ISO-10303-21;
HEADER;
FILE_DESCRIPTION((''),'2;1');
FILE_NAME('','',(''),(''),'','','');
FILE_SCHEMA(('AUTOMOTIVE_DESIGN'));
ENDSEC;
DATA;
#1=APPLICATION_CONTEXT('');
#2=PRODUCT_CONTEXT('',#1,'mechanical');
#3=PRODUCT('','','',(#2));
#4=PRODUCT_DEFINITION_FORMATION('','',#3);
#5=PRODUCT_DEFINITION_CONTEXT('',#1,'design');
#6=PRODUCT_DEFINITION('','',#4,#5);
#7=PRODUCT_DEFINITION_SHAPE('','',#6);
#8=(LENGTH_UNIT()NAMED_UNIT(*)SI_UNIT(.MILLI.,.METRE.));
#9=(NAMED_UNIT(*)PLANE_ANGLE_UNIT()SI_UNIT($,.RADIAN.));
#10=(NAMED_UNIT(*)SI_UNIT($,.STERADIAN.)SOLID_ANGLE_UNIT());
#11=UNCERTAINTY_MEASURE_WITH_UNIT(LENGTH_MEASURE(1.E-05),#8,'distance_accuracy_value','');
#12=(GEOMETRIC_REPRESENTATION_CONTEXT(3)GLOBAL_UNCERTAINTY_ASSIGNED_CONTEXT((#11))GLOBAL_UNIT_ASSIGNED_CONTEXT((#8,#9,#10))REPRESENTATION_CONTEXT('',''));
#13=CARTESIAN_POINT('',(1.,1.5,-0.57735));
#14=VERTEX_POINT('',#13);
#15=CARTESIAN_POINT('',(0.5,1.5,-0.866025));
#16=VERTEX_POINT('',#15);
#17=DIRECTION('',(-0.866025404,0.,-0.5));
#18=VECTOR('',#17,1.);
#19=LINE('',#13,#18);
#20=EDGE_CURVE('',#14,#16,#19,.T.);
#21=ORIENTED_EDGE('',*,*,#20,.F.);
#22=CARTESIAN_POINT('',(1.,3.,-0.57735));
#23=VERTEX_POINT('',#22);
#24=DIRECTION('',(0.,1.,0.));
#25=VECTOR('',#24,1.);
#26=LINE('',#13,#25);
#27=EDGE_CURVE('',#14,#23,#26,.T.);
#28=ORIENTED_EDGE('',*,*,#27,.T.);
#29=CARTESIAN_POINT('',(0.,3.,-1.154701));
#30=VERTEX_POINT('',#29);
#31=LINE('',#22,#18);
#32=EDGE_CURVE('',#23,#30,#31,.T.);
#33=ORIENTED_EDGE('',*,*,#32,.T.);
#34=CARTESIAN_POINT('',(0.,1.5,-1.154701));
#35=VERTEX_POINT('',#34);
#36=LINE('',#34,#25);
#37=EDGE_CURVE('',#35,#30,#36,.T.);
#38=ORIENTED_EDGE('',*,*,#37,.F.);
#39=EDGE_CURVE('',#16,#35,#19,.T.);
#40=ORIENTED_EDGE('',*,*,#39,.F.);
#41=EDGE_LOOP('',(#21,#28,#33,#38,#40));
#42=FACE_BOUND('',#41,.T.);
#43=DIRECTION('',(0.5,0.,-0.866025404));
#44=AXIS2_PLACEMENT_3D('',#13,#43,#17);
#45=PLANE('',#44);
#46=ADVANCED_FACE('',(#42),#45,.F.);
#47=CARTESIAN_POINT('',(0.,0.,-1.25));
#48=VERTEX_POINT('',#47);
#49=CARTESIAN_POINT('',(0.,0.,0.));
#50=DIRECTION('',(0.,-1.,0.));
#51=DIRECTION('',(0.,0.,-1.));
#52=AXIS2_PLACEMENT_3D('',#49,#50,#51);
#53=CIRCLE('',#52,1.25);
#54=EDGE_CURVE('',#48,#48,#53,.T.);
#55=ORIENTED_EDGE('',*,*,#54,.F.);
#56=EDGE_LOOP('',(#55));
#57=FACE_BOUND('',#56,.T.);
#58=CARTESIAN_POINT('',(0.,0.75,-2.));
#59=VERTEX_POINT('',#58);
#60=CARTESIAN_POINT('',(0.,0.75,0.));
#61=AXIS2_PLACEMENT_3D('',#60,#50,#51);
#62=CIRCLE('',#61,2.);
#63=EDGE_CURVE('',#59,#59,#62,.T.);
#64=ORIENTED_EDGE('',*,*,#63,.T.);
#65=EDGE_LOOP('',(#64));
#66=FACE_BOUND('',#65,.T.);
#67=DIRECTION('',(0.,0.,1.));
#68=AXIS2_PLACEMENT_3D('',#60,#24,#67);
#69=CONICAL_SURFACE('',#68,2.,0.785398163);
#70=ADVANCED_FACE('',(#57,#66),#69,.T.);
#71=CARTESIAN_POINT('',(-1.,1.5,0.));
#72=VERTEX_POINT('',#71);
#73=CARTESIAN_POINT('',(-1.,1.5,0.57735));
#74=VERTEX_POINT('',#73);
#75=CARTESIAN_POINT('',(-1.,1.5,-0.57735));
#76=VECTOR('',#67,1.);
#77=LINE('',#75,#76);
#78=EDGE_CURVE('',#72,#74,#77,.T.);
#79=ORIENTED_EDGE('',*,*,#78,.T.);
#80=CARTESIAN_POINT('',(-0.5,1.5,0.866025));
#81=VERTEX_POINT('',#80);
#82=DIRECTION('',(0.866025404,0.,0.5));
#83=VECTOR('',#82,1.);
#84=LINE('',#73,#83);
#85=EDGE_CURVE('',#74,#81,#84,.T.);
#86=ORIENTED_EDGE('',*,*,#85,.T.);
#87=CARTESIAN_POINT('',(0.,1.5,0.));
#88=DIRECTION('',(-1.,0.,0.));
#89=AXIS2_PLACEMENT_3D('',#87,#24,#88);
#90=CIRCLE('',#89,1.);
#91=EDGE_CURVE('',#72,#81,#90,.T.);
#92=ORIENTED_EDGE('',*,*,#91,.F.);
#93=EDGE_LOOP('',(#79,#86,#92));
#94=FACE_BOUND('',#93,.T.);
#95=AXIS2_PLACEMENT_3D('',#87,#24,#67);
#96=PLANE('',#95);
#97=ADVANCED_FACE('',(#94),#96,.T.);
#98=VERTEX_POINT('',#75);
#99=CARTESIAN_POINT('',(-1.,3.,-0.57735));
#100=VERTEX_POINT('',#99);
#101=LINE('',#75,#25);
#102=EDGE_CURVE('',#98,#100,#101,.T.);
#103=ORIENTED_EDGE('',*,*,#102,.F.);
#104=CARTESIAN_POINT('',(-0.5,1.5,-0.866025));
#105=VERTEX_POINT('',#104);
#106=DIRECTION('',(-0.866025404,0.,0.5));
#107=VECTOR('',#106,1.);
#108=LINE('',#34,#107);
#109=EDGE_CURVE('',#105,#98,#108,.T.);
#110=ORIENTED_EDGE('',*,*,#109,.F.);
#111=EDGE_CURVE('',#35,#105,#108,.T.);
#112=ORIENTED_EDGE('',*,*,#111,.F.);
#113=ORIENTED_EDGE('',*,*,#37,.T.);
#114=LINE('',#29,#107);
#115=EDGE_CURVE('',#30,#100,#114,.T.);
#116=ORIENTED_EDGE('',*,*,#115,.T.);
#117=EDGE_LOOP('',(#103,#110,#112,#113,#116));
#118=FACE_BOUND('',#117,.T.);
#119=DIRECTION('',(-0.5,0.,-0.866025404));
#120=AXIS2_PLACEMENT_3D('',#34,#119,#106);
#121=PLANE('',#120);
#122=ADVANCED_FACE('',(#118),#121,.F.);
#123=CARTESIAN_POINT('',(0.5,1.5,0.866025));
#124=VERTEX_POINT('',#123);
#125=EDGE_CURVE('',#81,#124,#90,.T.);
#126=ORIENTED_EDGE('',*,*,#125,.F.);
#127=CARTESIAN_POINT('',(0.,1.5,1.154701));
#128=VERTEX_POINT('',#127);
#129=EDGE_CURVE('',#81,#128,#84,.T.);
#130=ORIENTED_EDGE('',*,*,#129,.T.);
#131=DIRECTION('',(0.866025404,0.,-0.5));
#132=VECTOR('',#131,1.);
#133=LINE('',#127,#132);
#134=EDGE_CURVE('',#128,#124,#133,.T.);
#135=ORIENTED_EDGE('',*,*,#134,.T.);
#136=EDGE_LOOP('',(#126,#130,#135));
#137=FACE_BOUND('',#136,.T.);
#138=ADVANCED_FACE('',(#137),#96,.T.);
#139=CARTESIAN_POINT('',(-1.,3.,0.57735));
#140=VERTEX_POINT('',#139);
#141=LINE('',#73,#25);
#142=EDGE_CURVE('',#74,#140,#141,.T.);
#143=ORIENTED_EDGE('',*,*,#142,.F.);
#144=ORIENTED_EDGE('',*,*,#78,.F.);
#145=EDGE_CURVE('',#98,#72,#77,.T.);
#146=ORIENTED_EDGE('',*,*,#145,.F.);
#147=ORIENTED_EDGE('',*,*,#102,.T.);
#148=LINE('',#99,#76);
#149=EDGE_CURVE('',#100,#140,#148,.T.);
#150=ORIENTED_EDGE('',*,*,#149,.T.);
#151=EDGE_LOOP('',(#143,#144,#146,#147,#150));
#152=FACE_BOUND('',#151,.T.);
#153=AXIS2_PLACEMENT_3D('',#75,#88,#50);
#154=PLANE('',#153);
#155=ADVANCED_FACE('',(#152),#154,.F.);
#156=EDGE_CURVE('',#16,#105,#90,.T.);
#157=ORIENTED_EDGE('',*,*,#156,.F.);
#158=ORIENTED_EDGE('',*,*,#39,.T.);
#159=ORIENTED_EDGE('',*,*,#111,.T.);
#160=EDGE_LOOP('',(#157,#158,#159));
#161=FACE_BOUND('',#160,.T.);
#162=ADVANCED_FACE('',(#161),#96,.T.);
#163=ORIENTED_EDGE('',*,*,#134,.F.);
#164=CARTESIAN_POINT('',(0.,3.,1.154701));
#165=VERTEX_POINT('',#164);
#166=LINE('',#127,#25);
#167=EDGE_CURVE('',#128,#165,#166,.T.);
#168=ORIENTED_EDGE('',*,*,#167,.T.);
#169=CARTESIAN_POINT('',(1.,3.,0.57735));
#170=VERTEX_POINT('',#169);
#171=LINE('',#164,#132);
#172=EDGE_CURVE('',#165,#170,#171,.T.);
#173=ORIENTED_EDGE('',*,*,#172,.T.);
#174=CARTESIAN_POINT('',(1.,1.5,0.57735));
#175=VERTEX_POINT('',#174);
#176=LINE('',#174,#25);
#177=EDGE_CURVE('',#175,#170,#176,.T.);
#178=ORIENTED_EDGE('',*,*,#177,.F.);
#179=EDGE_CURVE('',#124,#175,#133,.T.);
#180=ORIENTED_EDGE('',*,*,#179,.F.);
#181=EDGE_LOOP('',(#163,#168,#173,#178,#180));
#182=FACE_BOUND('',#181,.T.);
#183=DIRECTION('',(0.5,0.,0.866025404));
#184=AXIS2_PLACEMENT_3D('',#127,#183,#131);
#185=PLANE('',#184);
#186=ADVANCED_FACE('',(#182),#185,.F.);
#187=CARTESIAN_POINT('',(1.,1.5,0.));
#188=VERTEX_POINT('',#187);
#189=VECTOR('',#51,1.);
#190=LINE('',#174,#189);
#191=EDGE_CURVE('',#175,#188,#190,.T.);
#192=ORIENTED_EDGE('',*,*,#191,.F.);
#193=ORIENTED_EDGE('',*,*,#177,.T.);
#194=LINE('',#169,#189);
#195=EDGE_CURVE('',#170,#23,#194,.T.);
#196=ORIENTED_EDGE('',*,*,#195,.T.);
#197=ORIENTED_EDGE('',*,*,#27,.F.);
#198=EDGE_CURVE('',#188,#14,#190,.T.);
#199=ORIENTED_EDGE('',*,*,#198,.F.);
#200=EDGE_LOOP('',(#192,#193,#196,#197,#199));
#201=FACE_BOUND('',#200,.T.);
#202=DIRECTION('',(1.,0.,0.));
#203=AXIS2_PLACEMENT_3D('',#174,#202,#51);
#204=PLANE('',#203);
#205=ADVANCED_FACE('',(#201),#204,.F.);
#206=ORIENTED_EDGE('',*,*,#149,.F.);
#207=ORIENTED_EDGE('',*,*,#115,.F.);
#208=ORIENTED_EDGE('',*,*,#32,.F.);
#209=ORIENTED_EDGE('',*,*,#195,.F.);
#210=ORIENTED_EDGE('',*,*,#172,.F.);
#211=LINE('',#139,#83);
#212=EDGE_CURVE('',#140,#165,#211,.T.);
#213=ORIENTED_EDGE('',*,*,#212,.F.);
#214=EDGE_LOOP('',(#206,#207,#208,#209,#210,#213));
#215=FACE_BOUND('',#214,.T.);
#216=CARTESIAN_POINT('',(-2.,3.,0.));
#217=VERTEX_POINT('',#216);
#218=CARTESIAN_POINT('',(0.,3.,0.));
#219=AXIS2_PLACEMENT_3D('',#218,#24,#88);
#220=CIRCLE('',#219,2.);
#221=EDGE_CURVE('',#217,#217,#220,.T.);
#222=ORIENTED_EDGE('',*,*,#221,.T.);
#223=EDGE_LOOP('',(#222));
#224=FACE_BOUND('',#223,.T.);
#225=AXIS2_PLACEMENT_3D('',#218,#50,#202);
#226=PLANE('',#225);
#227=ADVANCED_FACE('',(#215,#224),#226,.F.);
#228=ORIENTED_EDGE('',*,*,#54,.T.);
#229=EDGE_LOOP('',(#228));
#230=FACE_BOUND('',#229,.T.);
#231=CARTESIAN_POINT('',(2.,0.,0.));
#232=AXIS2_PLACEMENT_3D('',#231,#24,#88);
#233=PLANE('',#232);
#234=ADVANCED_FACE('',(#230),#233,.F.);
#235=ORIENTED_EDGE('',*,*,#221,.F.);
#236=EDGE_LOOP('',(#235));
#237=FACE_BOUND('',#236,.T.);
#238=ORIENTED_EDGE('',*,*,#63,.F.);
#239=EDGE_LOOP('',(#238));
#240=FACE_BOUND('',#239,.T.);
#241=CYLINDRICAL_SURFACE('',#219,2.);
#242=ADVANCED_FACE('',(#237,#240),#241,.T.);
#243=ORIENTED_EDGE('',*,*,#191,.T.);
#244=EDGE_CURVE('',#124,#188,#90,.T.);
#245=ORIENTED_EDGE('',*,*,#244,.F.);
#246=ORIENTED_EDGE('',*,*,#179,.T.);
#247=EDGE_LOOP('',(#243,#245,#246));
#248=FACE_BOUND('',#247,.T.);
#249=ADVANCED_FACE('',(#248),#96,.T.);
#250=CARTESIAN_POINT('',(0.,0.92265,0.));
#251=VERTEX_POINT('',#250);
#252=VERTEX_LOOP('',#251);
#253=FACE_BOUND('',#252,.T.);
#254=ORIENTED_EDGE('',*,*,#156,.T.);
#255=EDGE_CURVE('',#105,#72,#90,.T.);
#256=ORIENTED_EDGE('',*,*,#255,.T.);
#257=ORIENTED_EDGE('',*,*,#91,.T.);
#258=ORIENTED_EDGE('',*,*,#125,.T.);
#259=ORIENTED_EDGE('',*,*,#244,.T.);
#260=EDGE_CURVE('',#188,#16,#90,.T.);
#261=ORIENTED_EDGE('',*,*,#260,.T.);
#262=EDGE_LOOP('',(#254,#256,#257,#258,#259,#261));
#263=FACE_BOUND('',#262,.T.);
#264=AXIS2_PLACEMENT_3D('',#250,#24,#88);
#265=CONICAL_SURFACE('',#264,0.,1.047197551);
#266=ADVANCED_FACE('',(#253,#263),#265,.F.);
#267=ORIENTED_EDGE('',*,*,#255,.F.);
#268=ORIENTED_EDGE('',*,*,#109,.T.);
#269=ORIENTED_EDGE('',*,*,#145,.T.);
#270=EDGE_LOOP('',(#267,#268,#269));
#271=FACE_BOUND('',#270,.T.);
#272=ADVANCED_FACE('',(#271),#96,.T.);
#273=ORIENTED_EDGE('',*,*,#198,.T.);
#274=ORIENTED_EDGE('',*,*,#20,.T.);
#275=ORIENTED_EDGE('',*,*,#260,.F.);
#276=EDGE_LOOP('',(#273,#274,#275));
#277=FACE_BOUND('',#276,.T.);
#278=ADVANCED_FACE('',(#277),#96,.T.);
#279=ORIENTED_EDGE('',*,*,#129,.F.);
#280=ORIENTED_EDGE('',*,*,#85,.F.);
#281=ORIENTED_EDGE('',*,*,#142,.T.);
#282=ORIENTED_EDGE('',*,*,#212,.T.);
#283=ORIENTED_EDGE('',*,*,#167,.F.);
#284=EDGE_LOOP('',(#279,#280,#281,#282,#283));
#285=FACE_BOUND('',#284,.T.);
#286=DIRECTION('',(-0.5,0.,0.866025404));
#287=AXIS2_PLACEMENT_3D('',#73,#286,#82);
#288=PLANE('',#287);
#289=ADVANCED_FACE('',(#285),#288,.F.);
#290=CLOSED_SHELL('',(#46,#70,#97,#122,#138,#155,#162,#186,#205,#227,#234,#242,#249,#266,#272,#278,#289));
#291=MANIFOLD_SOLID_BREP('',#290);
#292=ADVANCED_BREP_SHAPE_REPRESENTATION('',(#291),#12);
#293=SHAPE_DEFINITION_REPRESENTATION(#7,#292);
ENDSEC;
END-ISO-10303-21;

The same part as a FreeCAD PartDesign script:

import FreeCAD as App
import Part
import Sketcher

V = App.Vector
Q = App.Units.Quantity

doc = App.newDocument("Part")
body = doc.addObject("PartDesign::Body", "Body")

# Sketch on XY plane
sketch1 = doc.addObject("Sketcher::SketchObject", "Sketch")
body.addObject(sketch1)
sketch1.AttachmentSupport = (doc.XY_Plane, [""])
sketch1.MapMode = "FlatFace"
sketch1.addGeometry([
    Part.LineSegment(V(0, 3, 0), V(0, 0, 0)),
    Part.LineSegment(V(0, 0, 0), V(2, 0, 0)),
    Part.LineSegment(V(2, 0, 0), V(2, 3, 0)),
    Part.LineSegment(V(2, 3, 0), V(0, 3, 0)),
], False)
sketch1.addConstraint([
    Sketcher.Constraint("Coincident", 0, 2, 1, 1),
    Sketcher.Constraint("Coincident", 1, 2, 2, 1),
    Sketcher.Constraint("Coincident", 2, 2, 3, 1),
    Sketcher.Constraint("Coincident", 3, 2, 0, 1),
    Sketcher.Constraint("Vertical", 0),
    Sketcher.Constraint("Horizontal", 1),
    Sketcher.Constraint("Vertical", 2),
    Sketcher.Constraint("Horizontal", 3),
    Sketcher.Constraint("Coincident", 0, 2, -1, 1),
    Sketcher.Constraint("DistanceX", 1, 1, 1, 2, 2.0),
    Sketcher.Constraint("DistanceY", 0, 2, 0, 1, 3.0),
])
revolution = doc.addObject("PartDesign::Revolution", "Revolution")
body.addObject(revolution)
revolution.Profile = sketch1
revolution.ReferenceAxis = (sketch1, ["V_Axis"])
revolution.Angle = 360

# Sketch on XY plane
sketch2 = doc.addObject("Sketcher::SketchObject", "Sketch001")
body.addObject(sketch2)
sketch2.AttachmentSupport = (doc.XY_Plane, [""])
sketch2.MapMode = "FlatFace"
sketch2.addGeometry([
    Part.LineSegment(V(1, 3, 0), V(0, 3, 0)),
    Part.LineSegment(V(0, 3, 0), V(0, 0.9, 0)),
    Part.LineSegment(V(0, 0.9, 0), V(1, 1.5, 0)),
    Part.LineSegment(V(1, 1.5, 0), V(1, 3, 0)),
], False)
sketch2.addConstraint([
    Sketcher.Constraint("Coincident", 0, 2, 1, 1),
    Sketcher.Constraint("Coincident", 1, 2, 2, 1),
    Sketcher.Constraint("Coincident", 2, 2, 3, 1),
    Sketcher.Constraint("Coincident", 3, 2, 0, 1),
    Sketcher.Constraint("Horizontal", 0),
    Sketcher.Constraint("Vertical", 1),
    Sketcher.Constraint("Vertical", 3),
    Sketcher.Constraint("PointOnObject", 0, 2, -2),
    Sketcher.Constraint("DistanceX", 0, 2, 0, 1, 1.0),
    Sketcher.Constraint("Angle", 2, Q("30 deg")),
    Sketcher.Constraint("DistanceY", 3, 1, 3, 2, 1.5),
    Sketcher.Constraint("DistanceY", -1, 1, 0, 2, 3.0),
])
groove = doc.addObject("PartDesign::Groove", "Groove")
body.addObject(groove)
groove.Profile = sketch2
groove.ReferenceAxis = (sketch2, ["V_Axis"])
groove.Angle = 360

# Sketch on XZ plane
sketch3 = doc.addObject("Sketcher::SketchObject", "Sketch002")
body.addObject(sketch3)
sketch3.AttachmentSupport = (doc.XZ_Plane, [""])
sketch3.MapMode = "FlatFace"
sketch3.AttachmentOffset = App.Placement(V(0, 0, -3), App.Rotation())
sketch3.addGeometry([
    Part.LineSegment(V(0, -1.2, 0), V(-1, -0.6, 0)),  # 0
    Part.LineSegment(V(-1, -0.6, 0), V(-1, 0.6, 0)),  # 1
    Part.LineSegment(V(-1, 0.6, 0), V(0, 1.2, 0)),  # 2
    Part.LineSegment(V(0, 1.2, 0), V(1, 0.6, 0)),  # 3
    Part.LineSegment(V(1, 0.6, 0), V(1, -0.6, 0)),  # 4
    Part.LineSegment(V(1, -0.6, 0), V(0, -1.2, 0)),  # 5
], False)
sketch3.addConstraint([
    Sketcher.Constraint("Coincident", 0, 2, 1, 1),
    Sketcher.Constraint("Coincident", 1, 2, 2, 1),
    Sketcher.Constraint("Coincident", 2, 2, 3, 1),
    Sketcher.Constraint("Coincident", 3, 2, 4, 1),
    Sketcher.Constraint("Coincident", 4, 2, 5, 1),
    Sketcher.Constraint("Coincident", 5, 2, 0, 1),
    Sketcher.Constraint("Vertical", 1),
    Sketcher.Constraint("Vertical", 4),
    Sketcher.Constraint("Symmetric", 0, 2, 3, 2, -1, 1),
    Sketcher.Constraint("Symmetric", 2, 2, 5, 2, -1, 1),
    Sketcher.Constraint("PointOnObject", 2, 2, -2),
    Sketcher.Constraint("Parallel", 2, 5),
    Sketcher.Constraint("Horizontal", 1, 2, 3, 2),
    Sketcher.Constraint("Angle", 0, Q("150 deg")),
    Sketcher.Constraint("DistanceX", 0, 2, -1, 1, 1.0),
    Sketcher.Constraint("DistanceY", 1, 1, 1, 2, 1.154701),
])
pocket1 = doc.addObject("PartDesign::Pocket", "Pocket")
body.addObject(pocket1)
pocket1.Profile = sketch3
pocket1.Length = 1.5
pocket1.Reversed = True

# Sketch on XY plane
sketch4 = doc.addObject("Sketcher::SketchObject", "Sketch003")
body.addObject(sketch4)
sketch4.AttachmentSupport = (doc.XY_Plane, [""])
sketch4.MapMode = "FlatFace"
sketch4.addGeometry([
    Part.LineSegment(V(1.2, 0, 0), V(2, 0, 0)),
    Part.LineSegment(V(2, 0, 0), V(2, 0.8, 0)),
    Part.LineSegment(V(2, 0.8, 0), V(1.2, 0, 0)),
], False)
sketch4.addConstraint([
    Sketcher.Constraint("Coincident", 0, 2, 1, 1),
    Sketcher.Constraint("Coincident", 1, 2, 2, 1),
    Sketcher.Constraint("Coincident", 2, 2, 0, 1),
    Sketcher.Constraint("Horizontal", 0),
    Sketcher.Constraint("Vertical", 1),
    Sketcher.Constraint("PointOnObject", 0, 2, -1),
    Sketcher.Constraint("Equal", 0, 1),
    Sketcher.Constraint("DistanceX", -1, 1, 0, 2, 2.0),
    Sketcher.Constraint("DistanceX", 0, 1, 0, 2, 0.75),
])
groove2 = doc.addObject("PartDesign::Groove", "Groove001")
body.addObject(groove2)
groove2.Profile = sketch4
groove2.ReferenceAxis = (sketch4, ["V_Axis"])
groove2.Angle = 360

doc.recompute()
